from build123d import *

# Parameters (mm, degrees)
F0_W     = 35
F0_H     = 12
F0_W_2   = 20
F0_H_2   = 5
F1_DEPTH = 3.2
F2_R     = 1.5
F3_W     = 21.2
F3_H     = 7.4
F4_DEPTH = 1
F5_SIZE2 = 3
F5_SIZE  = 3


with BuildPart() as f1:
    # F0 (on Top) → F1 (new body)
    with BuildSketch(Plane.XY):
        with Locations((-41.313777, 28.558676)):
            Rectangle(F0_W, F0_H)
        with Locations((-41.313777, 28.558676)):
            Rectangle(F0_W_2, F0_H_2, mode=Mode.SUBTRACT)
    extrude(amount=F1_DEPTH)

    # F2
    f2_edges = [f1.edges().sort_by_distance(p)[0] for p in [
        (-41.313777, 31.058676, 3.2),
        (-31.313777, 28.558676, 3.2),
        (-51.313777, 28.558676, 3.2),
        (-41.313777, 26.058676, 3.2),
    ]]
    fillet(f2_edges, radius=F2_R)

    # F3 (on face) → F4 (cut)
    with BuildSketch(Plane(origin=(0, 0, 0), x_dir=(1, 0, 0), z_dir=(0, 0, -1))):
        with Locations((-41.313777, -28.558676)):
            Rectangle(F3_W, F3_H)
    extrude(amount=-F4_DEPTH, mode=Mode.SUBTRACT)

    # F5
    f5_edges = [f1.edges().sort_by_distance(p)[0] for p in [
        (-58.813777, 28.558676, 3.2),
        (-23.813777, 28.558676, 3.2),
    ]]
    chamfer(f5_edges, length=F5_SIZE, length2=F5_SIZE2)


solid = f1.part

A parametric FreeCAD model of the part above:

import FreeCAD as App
import Part
import Sketcher

V = App.Vector
Q = App.Units.Quantity


def edges_at(feature, points):
    """Names of the edges that pass closest to the given points."""
    edges = feature.Shape.Edges
    near = lambda p: min(range(len(edges)), key=lambda i: edges[i].distToShape(Part.Vertex(*p))[0])
    return sorted({f"Edge{near(p) + 1}" for p in points})


def add_polygon(sketch, points):
    """Adds a closed chain of lines whose ends are joined by coincident constraints."""
    first, n = sketch.GeometryCount, len(points)
    for a, b in zip(points, points[1:] + points[:1]):
        sketch.addGeometry(Part.LineSegment(App.Vector(*a, 0), App.Vector(*b, 0)), False)
    for i in range(n):
        sketch.addConstraint(Sketcher.Constraint("Coincident", first + i, 2, first + (i + 1) % n, 1))

doc = App.newDocument("Part")
body = doc.addObject("PartDesign::Body", "Body")

sketch1 = body.newObject("Sketcher::SketchObject", "Sketch")
sketch1.AttachmentSupport = (doc.getObject("XY_Plane"), [""])
sketch1.MapMode = "FlatFace"
add_polygon(sketch1, [(-59, 35), (-59, 23), (-24, 23), (-24, 35)])
add_polygon(sketch1, [(-31, 26), (-51, 26), (-51, 31), (-31, 31)])
sketch1.addConstraint(Sketcher.Constraint("Vertical", 0))
sketch1.addConstraint(Sketcher.Constraint("Horizontal", 1))
sketch1.addConstraint(Sketcher.Constraint("Vertical", 2))
sketch1.addConstraint(Sketcher.Constraint("Horizontal", 3))
sketch1.addConstraint(Sketcher.Constraint("Horizontal", 4))
sketch1.addConstraint(Sketcher.Constraint("Vertical", 5))
sketch1.addConstraint(Sketcher.Constraint("Horizontal", 6))
sketch1.addConstraint(Sketcher.Constraint("Vertical", 7))
sketch1.addConstraint(Sketcher.Constraint("DistanceX", 1, 1, 1, 2, Q("35 mm")))
sketch1.addConstraint(Sketcher.Constraint("DistanceX", 4, 2, 4, 1, Q("20 mm")))
sketch1.addConstraint(Sketcher.Constraint("DistanceY", 0, 2, 0, 1, Q("12 mm")))
sketch1.addConstraint(Sketcher.Constraint("DistanceY", 5, 1, 5, 2, Q("5 mm")))
sketch1.addConstraint(Sketcher.Constraint("DistanceX", 0, 2, 4, 2, Q("7.5 mm")))
sketch1.addConstraint(Sketcher.Constraint("DistanceY", 0, 2, 4, 2, Q("3.5 mm")))
sketch1.addConstraint(Sketcher.Constraint("DistanceX", 0, 2, -1, 1, Q("58.813777 mm")))
sketch1.addConstraint(Sketcher.Constraint("DistanceY", -1, 1, 0, 2, Q("22.558676 mm")))
pad1 = body.newObject("PartDesign::Pad", "Pad")
pad1.Profile = sketch1
pad1.Length = 3.2
doc.recompute()

fillet = body.newObject("PartDesign::Fillet", "Fillet")
fillet.Base = (pad1, edges_at(pad1, [
    (-41.314, 31.059, 3.2),
    (-31.314, 28.559, 3.2),
    (-51.314, 28.559, 3.2),
    (-41.314, 26.059, 3.2),
]))
fillet.Radius = 1.5

sketch2 = body.newObject("Sketcher::SketchObject", "Sketch001")
sketch2.AttachmentSupport = (doc.getObject("XY_Plane"), [""])
sketch2.MapMode = "FlatFace"
add_polygon(sketch2, [(-52, 25), (-52, 32), (-31, 32), (-31, 25)])
sketch2.addConstraint(Sketcher.Constraint("Vertical", 0))
sketch2.addConstraint(Sketcher.Constraint("Horizontal", 1))
sketch2.addConstraint(Sketcher.Constraint("Vertical", 2))
sketch2.addConstraint(Sketcher.Constraint("Horizontal", 3))
sketch2.addConstraint(Sketcher.Constraint("DistanceX", 1, 1, 1, 2, Q("21.2 mm")))
sketch2.addConstraint(Sketcher.Constraint("DistanceY", 0, 1, 0, 2, Q("7.4 mm")))
sketch2.addConstraint(Sketcher.Constraint("DistanceX", 0, 2, -1, 1, Q("51.913777 mm")))
sketch2.addConstraint(Sketcher.Constraint("DistanceY", -1, 1, 0, 2, Q("32.258676 mm")))
pocket1 = body.newObject("PartDesign::Pocket", "Pocket")
pocket1.Profile = sketch2
pocket1.Length = 1
pocket1.Reversed = True
doc.recompute()

chamfer = body.newObject("PartDesign::Chamfer", "Chamfer")
chamfer.Base = (pocket1, edges_at(pocket1, [(-58.814, 28.559, 3.2), (-23.814, 28.559, 3.2)]))
chamfer.ChamferType = "Two distances"
chamfer.Size = 3
chamfer.Size2 = 3

doc.recompute()
